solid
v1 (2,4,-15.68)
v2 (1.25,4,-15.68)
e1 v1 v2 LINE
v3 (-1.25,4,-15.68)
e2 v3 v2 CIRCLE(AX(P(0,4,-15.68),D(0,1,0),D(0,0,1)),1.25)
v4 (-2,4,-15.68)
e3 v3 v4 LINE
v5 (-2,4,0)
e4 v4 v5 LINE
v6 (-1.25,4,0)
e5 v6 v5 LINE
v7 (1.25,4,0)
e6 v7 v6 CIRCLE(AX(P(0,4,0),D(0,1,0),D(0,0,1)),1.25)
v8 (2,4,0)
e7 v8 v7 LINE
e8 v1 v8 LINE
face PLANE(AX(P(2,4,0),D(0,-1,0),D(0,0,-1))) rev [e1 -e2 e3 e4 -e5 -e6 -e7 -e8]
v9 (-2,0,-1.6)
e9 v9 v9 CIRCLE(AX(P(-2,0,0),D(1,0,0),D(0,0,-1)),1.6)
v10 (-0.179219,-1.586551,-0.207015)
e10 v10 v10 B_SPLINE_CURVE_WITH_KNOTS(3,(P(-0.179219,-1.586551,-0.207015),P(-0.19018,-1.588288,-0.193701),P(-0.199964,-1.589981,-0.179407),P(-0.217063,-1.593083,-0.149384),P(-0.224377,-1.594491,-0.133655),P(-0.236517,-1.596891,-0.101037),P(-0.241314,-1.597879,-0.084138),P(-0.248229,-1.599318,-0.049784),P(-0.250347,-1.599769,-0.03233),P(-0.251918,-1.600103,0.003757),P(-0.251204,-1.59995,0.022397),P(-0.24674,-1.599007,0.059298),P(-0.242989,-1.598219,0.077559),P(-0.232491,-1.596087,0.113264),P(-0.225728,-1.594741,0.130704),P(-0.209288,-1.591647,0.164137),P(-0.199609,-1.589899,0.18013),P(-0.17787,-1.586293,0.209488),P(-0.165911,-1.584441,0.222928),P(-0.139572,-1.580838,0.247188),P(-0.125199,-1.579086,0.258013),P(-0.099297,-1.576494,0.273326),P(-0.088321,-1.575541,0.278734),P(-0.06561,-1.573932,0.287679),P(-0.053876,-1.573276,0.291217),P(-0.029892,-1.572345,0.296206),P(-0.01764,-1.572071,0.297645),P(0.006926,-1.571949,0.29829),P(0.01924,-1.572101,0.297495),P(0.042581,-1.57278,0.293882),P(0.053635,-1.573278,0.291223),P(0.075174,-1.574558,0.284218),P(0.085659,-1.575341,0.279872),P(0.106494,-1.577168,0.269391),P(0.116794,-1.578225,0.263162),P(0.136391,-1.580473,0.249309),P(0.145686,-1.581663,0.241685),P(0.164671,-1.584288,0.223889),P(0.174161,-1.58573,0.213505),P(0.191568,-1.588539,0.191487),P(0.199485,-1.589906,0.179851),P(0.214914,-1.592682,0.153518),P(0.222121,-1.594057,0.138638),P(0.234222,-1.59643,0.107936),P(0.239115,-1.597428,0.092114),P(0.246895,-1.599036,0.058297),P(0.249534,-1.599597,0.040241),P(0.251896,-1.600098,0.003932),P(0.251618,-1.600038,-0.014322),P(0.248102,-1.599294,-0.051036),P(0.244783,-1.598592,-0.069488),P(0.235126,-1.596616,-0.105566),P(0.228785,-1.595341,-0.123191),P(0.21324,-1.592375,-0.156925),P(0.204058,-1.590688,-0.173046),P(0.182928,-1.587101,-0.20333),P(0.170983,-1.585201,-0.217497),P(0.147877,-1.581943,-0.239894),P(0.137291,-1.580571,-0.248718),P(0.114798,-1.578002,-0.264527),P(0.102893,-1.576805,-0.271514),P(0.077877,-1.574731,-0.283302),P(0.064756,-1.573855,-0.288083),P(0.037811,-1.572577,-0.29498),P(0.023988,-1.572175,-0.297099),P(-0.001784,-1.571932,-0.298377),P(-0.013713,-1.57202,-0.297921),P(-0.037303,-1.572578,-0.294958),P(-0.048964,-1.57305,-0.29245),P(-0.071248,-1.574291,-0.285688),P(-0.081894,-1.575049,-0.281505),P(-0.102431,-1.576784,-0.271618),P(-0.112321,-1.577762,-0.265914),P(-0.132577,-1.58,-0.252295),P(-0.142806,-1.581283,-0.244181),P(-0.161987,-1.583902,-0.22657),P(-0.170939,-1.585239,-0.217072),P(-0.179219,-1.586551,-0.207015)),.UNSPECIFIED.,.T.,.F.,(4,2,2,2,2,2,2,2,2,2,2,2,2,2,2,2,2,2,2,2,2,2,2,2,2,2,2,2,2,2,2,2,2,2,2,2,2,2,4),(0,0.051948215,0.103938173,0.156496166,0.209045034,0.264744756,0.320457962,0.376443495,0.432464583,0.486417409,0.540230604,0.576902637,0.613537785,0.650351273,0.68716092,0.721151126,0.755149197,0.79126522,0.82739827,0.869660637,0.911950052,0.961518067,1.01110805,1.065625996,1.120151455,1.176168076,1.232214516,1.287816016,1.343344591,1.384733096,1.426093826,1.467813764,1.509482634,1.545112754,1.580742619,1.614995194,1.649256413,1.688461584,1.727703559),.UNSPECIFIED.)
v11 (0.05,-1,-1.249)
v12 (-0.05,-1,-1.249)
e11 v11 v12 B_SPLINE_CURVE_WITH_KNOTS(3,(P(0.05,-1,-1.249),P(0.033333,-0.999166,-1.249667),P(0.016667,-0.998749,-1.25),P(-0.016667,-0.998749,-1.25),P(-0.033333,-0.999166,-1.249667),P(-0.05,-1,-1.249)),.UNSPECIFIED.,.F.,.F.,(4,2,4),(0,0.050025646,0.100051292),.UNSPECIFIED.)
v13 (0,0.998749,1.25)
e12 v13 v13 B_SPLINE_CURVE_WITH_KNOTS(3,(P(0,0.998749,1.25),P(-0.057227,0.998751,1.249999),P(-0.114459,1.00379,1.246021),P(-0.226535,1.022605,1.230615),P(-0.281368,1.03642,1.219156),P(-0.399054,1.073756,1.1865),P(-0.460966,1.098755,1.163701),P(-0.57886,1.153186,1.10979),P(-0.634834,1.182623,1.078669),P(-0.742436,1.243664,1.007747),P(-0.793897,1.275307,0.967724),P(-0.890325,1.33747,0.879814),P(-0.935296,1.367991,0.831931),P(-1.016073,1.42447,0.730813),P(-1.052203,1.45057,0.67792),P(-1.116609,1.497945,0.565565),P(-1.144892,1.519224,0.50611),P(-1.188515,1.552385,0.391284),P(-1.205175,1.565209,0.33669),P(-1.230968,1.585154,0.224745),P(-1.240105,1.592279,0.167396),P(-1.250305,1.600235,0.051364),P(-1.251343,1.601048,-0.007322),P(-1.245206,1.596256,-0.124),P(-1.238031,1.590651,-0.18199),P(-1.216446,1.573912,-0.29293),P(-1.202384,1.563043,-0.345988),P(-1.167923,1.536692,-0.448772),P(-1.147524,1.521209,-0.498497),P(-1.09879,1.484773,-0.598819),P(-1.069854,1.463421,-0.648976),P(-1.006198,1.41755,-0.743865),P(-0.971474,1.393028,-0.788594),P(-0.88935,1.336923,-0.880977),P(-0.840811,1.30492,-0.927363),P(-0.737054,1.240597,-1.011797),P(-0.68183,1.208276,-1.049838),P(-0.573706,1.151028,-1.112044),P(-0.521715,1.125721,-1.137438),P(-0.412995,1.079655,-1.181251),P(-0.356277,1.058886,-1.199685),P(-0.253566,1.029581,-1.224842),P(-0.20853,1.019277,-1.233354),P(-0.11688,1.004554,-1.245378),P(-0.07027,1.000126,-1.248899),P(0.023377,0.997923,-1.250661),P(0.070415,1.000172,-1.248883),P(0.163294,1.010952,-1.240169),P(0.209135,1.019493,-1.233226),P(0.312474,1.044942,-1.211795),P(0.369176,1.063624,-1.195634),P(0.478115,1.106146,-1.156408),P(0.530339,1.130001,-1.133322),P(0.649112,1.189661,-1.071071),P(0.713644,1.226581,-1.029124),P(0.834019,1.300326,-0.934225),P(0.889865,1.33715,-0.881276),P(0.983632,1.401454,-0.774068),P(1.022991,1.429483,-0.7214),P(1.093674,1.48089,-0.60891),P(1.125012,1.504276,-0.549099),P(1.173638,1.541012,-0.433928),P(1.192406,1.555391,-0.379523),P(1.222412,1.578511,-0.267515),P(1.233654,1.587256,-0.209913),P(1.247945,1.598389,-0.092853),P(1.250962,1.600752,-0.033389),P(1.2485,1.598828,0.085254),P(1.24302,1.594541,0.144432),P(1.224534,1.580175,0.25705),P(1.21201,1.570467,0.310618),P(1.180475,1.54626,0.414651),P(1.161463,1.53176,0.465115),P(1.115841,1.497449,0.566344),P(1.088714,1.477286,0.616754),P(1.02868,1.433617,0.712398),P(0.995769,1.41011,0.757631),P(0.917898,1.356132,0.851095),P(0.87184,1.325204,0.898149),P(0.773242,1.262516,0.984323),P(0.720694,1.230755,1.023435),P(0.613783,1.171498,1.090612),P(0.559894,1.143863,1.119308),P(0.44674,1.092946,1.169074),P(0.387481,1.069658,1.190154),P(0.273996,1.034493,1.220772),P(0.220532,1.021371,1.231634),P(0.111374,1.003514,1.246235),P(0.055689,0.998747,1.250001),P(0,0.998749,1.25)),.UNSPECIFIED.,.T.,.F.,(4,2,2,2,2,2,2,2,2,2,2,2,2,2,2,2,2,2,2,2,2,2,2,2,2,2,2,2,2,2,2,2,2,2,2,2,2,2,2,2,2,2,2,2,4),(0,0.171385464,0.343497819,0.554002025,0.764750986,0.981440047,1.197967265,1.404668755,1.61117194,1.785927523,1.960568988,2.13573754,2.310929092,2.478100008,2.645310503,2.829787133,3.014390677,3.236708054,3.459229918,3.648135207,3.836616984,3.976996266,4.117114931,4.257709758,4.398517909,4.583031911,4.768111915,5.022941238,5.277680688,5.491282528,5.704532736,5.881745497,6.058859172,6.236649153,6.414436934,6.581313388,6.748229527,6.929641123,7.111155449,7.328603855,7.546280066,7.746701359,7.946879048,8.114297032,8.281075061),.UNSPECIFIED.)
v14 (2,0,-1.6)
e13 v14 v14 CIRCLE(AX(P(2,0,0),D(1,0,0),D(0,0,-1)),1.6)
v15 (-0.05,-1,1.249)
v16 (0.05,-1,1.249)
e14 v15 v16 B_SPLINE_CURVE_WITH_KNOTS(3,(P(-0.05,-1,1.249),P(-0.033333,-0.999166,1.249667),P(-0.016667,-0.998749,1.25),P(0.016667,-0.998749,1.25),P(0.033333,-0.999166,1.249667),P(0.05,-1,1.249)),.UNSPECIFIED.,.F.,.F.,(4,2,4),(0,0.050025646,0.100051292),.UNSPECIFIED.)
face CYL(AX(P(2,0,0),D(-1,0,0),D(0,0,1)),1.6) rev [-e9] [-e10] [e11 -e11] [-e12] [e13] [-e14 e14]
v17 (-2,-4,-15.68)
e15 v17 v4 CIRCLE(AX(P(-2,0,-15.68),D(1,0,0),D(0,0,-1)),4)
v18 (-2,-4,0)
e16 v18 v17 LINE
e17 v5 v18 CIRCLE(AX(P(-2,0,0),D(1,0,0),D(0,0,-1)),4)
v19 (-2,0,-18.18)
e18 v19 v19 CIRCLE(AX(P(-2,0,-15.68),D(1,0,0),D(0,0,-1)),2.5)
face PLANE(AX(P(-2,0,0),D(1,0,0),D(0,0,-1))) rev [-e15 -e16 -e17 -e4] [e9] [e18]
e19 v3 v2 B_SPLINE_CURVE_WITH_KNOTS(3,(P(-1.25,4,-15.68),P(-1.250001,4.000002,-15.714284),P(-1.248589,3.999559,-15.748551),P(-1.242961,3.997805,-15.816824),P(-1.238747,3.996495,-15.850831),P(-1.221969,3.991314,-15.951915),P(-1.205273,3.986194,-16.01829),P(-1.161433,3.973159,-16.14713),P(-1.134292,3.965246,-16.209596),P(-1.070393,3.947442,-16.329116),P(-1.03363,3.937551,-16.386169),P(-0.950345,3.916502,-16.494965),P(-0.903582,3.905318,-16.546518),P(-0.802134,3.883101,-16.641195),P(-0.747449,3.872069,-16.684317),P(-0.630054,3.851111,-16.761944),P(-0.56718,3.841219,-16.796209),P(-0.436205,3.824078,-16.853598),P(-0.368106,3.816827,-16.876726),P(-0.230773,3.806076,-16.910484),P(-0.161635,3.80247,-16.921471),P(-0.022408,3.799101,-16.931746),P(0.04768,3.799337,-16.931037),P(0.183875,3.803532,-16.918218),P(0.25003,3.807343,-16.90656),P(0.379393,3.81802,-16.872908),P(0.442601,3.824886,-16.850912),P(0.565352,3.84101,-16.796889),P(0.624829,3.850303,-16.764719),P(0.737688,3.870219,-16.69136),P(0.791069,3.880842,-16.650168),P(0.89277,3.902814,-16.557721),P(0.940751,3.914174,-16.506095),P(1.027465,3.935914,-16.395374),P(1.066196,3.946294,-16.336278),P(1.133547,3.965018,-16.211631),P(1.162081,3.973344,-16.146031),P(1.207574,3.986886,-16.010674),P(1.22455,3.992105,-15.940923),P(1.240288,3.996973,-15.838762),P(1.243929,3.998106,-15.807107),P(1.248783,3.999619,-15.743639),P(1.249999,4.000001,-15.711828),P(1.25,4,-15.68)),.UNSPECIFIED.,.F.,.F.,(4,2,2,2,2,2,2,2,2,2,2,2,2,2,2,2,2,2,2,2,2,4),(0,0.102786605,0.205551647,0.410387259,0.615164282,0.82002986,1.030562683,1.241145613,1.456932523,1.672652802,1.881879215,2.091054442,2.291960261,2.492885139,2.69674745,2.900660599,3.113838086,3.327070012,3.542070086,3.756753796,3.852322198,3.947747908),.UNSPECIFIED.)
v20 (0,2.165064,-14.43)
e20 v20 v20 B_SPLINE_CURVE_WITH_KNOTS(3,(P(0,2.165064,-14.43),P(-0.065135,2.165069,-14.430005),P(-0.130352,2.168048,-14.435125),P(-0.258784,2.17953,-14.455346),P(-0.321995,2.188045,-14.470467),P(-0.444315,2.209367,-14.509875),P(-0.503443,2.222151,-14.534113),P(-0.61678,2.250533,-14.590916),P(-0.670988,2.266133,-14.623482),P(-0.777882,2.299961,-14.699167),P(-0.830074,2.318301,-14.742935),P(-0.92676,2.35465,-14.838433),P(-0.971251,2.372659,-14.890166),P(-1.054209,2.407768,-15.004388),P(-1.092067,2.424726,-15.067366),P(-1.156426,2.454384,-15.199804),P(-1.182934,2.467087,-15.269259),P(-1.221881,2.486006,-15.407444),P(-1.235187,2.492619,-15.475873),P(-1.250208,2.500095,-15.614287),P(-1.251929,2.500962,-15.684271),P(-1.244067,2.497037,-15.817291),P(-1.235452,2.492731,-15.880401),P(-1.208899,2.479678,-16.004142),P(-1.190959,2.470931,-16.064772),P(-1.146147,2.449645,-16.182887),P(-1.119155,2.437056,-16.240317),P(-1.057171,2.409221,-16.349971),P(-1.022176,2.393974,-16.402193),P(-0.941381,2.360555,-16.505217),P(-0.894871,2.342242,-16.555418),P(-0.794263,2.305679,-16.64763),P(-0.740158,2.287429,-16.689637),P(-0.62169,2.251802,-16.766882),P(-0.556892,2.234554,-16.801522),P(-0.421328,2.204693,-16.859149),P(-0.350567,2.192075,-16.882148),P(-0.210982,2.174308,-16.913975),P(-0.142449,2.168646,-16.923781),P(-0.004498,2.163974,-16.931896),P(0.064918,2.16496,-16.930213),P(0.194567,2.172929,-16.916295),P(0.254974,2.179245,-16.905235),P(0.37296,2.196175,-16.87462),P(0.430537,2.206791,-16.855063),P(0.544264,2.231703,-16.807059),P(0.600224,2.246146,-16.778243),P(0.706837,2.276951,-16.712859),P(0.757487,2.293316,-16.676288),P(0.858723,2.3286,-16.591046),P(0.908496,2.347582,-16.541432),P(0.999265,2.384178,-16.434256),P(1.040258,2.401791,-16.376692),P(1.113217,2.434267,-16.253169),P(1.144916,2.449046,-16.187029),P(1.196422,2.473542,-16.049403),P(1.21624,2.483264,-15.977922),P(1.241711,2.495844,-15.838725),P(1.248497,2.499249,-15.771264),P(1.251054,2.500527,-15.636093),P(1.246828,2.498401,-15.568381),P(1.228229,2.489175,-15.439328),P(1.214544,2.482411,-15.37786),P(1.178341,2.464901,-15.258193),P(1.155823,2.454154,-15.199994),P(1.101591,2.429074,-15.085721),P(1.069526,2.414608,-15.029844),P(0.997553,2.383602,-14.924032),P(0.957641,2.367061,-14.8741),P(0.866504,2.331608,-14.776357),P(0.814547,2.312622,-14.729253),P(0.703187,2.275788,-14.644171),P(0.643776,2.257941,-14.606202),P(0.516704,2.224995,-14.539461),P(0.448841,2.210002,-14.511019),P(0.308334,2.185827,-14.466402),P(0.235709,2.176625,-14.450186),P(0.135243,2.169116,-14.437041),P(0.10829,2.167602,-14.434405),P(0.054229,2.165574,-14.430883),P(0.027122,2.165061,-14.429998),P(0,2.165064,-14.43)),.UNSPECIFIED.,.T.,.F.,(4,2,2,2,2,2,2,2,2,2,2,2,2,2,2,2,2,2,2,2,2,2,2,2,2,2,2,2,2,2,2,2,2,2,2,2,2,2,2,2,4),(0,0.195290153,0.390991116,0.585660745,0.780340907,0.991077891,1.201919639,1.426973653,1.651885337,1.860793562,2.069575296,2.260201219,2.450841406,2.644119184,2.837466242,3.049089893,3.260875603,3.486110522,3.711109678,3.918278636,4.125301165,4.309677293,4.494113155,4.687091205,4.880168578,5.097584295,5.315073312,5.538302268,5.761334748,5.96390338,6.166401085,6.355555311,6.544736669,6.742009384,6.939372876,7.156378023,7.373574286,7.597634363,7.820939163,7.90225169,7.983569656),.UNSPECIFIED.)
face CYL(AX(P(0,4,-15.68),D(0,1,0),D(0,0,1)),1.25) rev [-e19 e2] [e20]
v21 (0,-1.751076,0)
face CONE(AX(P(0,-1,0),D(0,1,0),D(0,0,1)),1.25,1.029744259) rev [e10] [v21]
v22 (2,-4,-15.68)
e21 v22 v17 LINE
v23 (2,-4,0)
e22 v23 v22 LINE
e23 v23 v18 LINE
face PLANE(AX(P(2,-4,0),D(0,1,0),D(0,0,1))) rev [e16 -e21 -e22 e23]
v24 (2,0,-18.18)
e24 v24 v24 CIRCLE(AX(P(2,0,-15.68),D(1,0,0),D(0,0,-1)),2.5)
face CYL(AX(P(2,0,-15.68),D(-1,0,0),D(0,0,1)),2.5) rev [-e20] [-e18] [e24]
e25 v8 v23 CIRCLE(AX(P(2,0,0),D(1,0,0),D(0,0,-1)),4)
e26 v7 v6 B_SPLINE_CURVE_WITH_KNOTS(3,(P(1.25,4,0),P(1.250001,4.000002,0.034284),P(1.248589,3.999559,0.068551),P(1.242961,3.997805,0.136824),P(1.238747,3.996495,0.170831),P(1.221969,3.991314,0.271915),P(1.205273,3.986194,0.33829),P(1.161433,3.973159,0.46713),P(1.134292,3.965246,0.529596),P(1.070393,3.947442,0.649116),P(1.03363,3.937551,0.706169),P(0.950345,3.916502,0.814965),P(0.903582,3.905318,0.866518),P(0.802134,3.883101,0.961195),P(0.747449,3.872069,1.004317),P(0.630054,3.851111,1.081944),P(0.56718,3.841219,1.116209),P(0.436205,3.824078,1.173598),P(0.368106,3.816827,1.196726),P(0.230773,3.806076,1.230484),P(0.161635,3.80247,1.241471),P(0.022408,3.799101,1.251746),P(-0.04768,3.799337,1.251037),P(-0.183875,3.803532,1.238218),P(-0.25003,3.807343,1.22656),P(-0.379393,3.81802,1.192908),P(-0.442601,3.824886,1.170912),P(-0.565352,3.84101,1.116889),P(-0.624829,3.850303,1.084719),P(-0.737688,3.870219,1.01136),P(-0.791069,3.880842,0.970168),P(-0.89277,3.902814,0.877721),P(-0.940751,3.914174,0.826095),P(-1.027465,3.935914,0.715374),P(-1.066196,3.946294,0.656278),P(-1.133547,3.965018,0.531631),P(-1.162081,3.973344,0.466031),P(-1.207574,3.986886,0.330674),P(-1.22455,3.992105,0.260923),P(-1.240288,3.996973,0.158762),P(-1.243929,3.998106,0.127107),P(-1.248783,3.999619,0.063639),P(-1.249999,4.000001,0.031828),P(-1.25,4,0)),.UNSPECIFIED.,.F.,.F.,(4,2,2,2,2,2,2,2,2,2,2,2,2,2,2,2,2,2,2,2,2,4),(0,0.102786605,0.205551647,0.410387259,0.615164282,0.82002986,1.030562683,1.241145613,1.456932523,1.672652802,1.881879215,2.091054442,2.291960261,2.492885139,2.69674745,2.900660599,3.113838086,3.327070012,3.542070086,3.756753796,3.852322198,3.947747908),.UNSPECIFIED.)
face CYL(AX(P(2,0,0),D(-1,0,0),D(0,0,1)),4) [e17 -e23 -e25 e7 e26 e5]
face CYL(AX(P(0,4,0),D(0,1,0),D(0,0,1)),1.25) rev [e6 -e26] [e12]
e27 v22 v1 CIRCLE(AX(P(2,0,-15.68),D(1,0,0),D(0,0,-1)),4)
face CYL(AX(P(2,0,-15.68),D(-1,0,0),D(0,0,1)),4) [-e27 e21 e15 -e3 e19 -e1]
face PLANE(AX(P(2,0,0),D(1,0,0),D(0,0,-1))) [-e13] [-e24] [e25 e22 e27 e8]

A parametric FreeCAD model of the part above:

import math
import FreeCAD as App
import Part
import Sketcher

V = App.Vector

doc = App.newDocument("Part")
body = doc.addObject("PartDesign::Body", "Body")

sketch1 = body.newObject("Sketcher::SketchObject", "Sketch")
sketch1.AttachmentSupport = (doc.getObject("YZ_Plane"), [""])
sketch1.MapMode = "FlatFace"
sketch1.addGeometry(Part.LineSegment(V(4, -15.7, 0), V(4, 0, 0)), False)
sketch1.addGeometry(Part.ArcOfCircle(Part.Circle(V(0, 0, 0), V(0, 0, 1), 4), math.radians(0), math.radians(180)), False)
sketch1.addGeometry(Part.LineSegment(V(-4, 0, 0), V(-4, -15.7, 0)), False)
sketch1.addGeometry(Part.ArcOfCircle(Part.Circle(V(0, -15.7, 0), V(0, 0, 1), 4), math.radians(180), math.radians(360)), False)
sketch1.addGeometry(Part.Circle(V(0, -15.7, 0), V(0, 0, 1), 2.5), False)
sketch1.addGeometry(Part.Circle(V(0, 0, 0), V(0, 0, 1), 1.6), False)
sketch1.addConstraint(Sketcher.Constraint("Tangent", 0, 2, 1, 1))
sketch1.addConstraint(Sketcher.Constraint("Tangent", 1, 2, 2, 1))
sketch1.addConstraint(Sketcher.Constraint("Tangent", 2, 2, 3, 1))
sketch1.addConstraint(Sketcher.Constraint("Tangent", 3, 2, 0, 1))
sketch1.addConstraint(Sketcher.Constraint("Vertical", 0))
sketch1.addConstraint(Sketcher.Constraint("Vertical", 2))
sketch1.addConstraint(Sketcher.Constraint("Coincident", 1, 3, -1, 1))
sketch1.addConstraint(Sketcher.Constraint("Coincident", 5, 3, -1, 1))
sketch1.addConstraint(Sketcher.Constraint("Coincident", 4, 3, 3, 3))
sketch1.addConstraint(Sketcher.Constraint("Diameter", 4, 5.0))
sketch1.addConstraint(Sketcher.Constraint("Radius", 1, 4.0))
sketch1.addConstraint(Sketcher.Constraint("Diameter", 5, 3.2))
sketch1.addConstraint(Sketcher.Constraint("DistanceY", 0, 1, 0, 2, 15.68))
pad1 = body.newObject("PartDesign::Pad", "Pad")
pad1.Profile = sketch1
pad1.Length = 4
pad1.Midplane = True

sketch2 = body.newObject("Sketcher::SketchObject", "Sketch001")
sketch2.AttachmentSupport = (doc.getObject("XZ_Plane"), [""])
sketch2.MapMode = "FlatFace"
sketch2.AttachmentOffset = App.Placement(V(0, 0, -4), App.Rotation())
sketch2.addGeometry(Part.Circle(V(0, -15.7, 0), V(0, 0, 1), 1.2), False)
sketch2.addGeometry(Part.Circle(V(0, 0, 0), V(0, 0, 1), 1.2), False)
sketch2.addConstraint(Sketcher.Constraint("Coincident", 1, 3, -1, 1))
sketch2.addConstraint(Sketcher.Constraint("Equal", 0, 1))
sketch2.addConstraint(Sketcher.Constraint("PointOnObject", 0, 3, -2))
sketch2.addConstraint(Sketcher.Constraint("Diameter", 0, 2.5))
sketch2.addConstraint(Sketcher.Constraint("DistanceY", 0, 3, -1, 1, 15.68))
doc.recompute()
hole = body.newObject("PartDesign::Hole", "Hole")
hole.Profile = sketch2
hole.ThreadType = "None"
hole.Diameter = 2.5
hole.DepthType = "Dimension"
hole.Depth = 5
hole.DrillPoint = "Angled"
hole.DrillPointAngle = 118
hole.Reversed = True

doc.recompute()
